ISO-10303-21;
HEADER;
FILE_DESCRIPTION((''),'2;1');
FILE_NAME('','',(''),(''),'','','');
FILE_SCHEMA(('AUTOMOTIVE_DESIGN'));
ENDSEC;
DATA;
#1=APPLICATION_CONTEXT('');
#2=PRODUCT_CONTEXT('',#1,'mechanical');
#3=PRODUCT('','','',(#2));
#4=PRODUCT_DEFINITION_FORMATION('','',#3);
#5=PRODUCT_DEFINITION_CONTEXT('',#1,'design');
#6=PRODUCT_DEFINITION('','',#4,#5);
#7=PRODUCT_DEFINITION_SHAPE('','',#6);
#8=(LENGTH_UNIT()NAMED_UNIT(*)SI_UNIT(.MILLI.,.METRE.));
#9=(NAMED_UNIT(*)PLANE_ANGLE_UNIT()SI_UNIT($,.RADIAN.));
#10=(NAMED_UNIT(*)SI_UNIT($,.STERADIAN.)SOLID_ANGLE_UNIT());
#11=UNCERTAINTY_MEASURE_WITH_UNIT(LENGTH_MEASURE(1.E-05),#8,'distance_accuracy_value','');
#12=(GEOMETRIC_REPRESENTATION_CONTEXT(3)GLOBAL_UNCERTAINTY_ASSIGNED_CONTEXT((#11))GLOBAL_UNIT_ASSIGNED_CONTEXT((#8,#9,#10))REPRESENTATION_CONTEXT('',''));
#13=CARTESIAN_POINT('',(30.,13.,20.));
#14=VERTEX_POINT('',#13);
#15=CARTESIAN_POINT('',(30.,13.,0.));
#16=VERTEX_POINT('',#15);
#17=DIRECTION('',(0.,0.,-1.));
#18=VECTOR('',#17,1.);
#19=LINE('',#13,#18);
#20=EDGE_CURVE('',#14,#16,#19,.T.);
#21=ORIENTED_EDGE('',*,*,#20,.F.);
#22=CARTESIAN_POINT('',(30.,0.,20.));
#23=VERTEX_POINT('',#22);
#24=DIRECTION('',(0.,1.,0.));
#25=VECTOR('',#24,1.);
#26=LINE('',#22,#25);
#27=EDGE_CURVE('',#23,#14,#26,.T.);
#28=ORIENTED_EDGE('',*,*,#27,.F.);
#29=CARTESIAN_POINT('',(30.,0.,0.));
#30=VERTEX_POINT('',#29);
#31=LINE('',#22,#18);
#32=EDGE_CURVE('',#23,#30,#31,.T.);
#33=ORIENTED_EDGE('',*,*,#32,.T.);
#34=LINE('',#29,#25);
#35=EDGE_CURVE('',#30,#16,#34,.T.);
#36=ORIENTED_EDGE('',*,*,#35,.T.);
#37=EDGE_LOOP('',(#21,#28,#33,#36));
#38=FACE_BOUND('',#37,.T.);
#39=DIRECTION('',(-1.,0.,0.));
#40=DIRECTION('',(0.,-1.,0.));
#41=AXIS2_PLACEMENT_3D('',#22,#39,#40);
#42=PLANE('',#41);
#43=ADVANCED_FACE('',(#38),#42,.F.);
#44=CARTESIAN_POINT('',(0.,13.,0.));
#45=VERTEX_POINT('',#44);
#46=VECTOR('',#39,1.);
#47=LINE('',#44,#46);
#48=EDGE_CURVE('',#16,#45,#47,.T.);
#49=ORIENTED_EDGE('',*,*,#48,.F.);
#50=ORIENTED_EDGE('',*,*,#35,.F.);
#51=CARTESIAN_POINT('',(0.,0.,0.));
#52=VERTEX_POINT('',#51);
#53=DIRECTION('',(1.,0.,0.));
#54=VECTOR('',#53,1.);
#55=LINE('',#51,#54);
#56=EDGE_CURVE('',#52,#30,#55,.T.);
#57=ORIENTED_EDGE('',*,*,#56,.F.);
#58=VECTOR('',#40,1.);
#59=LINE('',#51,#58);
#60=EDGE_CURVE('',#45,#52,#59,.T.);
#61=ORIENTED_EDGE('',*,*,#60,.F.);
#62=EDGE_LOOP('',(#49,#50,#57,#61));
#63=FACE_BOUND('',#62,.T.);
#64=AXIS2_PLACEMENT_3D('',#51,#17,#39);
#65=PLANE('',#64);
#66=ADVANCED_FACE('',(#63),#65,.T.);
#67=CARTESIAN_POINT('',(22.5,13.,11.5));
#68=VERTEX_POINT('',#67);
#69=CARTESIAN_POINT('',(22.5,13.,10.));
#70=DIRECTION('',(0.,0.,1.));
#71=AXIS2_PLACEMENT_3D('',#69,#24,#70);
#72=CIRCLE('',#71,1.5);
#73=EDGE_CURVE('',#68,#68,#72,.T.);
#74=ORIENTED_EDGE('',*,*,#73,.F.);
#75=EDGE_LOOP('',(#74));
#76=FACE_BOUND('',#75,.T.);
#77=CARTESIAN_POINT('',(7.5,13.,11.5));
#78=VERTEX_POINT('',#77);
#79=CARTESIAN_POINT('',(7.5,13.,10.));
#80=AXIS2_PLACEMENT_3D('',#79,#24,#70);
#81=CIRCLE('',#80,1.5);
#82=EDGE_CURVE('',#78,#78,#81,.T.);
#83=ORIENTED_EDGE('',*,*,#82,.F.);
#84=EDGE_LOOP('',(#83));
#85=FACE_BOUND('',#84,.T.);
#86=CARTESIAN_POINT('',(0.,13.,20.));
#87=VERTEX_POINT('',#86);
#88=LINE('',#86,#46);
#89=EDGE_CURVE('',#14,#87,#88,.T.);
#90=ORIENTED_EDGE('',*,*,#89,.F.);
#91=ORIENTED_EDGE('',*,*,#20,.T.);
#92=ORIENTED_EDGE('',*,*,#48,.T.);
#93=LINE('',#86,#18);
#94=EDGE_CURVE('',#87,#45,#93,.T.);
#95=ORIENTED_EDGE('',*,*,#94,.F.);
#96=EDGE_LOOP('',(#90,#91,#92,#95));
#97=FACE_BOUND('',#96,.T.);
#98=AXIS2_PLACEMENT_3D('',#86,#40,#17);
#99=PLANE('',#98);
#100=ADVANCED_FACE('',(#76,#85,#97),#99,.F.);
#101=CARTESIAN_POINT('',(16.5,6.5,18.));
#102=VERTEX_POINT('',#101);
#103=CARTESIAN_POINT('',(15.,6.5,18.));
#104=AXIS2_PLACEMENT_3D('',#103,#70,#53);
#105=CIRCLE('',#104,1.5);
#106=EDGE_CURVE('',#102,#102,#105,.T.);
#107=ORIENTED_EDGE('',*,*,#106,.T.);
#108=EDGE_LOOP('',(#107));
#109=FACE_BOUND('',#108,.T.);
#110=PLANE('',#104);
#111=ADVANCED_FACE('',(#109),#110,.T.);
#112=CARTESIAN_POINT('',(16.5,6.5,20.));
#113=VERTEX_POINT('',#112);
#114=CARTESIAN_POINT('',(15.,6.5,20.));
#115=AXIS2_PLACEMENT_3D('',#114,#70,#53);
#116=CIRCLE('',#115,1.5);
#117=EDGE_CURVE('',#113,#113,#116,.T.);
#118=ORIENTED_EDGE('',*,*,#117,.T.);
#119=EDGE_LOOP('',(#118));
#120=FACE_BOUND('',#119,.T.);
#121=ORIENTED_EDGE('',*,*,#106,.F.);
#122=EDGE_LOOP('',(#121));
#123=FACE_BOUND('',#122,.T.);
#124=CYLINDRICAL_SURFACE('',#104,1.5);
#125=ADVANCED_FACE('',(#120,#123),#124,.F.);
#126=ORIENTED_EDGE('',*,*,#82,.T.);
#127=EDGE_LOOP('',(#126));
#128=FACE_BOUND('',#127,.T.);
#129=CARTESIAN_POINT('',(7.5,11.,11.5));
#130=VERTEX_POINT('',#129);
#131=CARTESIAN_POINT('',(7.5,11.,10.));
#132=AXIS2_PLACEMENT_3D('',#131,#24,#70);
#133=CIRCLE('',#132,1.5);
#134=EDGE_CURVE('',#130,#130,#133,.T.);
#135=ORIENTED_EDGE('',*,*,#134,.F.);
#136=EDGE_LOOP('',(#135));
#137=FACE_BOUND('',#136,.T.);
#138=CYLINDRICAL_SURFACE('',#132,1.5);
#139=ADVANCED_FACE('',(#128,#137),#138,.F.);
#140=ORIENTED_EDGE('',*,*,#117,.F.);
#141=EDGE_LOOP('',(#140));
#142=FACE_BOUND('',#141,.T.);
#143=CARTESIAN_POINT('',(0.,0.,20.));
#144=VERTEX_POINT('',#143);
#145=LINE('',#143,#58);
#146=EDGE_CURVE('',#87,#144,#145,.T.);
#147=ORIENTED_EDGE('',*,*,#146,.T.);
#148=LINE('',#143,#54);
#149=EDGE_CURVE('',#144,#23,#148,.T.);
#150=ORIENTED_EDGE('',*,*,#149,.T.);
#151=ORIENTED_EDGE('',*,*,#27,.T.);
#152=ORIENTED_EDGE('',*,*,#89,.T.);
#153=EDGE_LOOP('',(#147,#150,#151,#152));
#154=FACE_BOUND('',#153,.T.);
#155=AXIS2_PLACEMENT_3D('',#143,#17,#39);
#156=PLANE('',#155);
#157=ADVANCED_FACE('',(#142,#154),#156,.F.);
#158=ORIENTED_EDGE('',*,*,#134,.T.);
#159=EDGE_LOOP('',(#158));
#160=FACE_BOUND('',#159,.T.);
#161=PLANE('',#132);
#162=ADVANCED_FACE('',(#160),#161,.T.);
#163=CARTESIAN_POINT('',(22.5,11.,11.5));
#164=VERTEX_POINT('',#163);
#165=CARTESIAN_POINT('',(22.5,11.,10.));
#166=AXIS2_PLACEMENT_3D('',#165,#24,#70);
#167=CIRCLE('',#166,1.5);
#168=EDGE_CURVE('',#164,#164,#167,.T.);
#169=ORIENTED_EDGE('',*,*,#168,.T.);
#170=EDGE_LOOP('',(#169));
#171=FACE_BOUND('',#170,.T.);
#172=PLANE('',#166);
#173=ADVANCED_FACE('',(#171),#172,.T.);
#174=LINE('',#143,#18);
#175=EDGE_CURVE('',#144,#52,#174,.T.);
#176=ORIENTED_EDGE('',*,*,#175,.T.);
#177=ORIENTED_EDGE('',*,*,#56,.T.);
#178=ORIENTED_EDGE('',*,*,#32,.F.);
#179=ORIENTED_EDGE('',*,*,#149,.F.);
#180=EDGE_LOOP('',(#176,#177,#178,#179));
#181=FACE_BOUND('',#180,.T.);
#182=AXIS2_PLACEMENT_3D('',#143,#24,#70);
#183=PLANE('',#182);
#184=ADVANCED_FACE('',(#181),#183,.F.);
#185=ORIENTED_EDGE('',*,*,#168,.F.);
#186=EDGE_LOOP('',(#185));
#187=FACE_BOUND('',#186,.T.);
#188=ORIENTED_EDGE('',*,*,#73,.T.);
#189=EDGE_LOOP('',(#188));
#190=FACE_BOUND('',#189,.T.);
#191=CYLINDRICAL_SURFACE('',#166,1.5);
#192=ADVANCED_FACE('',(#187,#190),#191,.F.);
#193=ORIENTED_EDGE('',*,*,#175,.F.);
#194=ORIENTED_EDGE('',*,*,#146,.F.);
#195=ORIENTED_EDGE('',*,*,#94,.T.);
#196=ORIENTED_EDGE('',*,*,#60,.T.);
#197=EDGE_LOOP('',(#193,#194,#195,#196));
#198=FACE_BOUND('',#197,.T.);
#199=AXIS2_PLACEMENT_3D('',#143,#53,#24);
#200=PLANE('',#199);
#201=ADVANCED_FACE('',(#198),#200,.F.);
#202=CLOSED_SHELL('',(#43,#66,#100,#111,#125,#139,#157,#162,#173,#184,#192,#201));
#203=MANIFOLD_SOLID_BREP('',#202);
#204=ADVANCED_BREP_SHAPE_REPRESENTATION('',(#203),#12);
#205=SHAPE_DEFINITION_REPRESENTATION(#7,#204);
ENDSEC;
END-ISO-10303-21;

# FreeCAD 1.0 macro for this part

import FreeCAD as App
import Part
import Sketcher
from FreeCAD import Vector


def add_polygon(sketch, points):
    """Adds a closed chain of lines whose ends are joined by coincident constraints."""
    first, n = sketch.GeometryCount, len(points)
    for a, b in zip(points, points[1:] + points[:1]):
        sketch.addGeometry(Part.LineSegment(App.Vector(*a, 0), App.Vector(*b, 0)), False)
    for i in range(n):
        sketch.addConstraint(Sketcher.Constraint("Coincident", first + i, 2, first + (i + 1) % n, 1))

doc = App.newDocument("Part")
body = doc.addObject("PartDesign::Body", "Body")

# Sketch on XY plane
sketch1 = body.newObject("Sketcher::SketchObject", "Sketch")
sketch1.AttachmentSupport = (doc.getObject("XY_Plane"), [""])
sketch1.MapMode = "FlatFace"
add_polygon(sketch1, [(0, 13), (0, 0), (30, 0), (30, 13)])  # lines 0-3
sketch1.addConstraint([
    Sketcher.Constraint("Vertical", 0),
    Sketcher.Constraint("Horizontal", 1),
    Sketcher.Constraint("Vertical", 2),
    Sketcher.Constraint("Horizontal", 3),
    Sketcher.Constraint("Coincident", 0, 2, -1, 1),
    Sketcher.Constraint("DistanceX", 1, 1, 1, 2, 30.0),
    Sketcher.Constraint("DistanceY", 0, 2, 0, 1, 13.0),
])
pad1 = body.newObject("PartDesign::Pad", "Pad")
pad1.Profile = sketch1
pad1.Length = 20

# Sketch on XY plane
sketch2 = body.newObject("Sketcher::SketchObject", "Sketch001")
sketch2.AttachmentSupport = (doc.getObject("XY_Plane"), [""])
sketch2.MapMode = "FlatFace"
sketch2.AttachmentOffset = App.Placement(Vector(0, 0, 20), App.Rotation())
sketch2.addGeometry(Part.Circle(Vector(15, 6.5, 0), Vector(0, 0, 1), 1.5), False)
sketch2.addConstraint([
    Sketcher.Constraint("Diameter", 0, 3.0),
    Sketcher.Constraint("DistanceX", -1, 1, 0, 3, 15.0),
    Sketcher.Constraint("DistanceY", -1, 1, 0, 3, 6.5),
])
pocket1 = body.newObject("PartDesign::Pocket", "Pocket")
pocket1.Profile = sketch2
pocket1.Length = 2

# Sketch on XZ plane
sketch3 = body.newObject("Sketcher::SketchObject", "Sketch002")
sketch3.AttachmentSupport = (doc.getObject("XZ_Plane"), [""])
sketch3.MapMode = "FlatFace"
sketch3.AttachmentOffset = App.Placement(Vector(0, 0, -13), App.Rotation())
sketch3.addGeometry([
    Part.Circle(Vector(7.5, 10, 0), Vector(0, 0, 1), 1.5),
    Part.Circle(Vector(22.5, 10, 0), Vector(0, 0, 1), 1.5),
], False)
sketch3.addConstraint([
    Sketcher.Constraint("Equal", 0, 1),
    Sketcher.Constraint("Horizontal", 0, 3, 1, 3),
    Sketcher.Constraint("Diameter", 0, 3.0),
    Sketcher.Constraint("DistanceY", -1, 1, 0, 3, 10.0),
    Sketcher.Constraint("DistanceX", 0, 3, 1, 3, 15.0),
    Sketcher.Constraint("DistanceX", -1, 1, 0, 3, 7.5),
])
pocket2 = body.newObject("PartDesign::Pocket", "Pocket001")
pocket2.Profile = sketch3
pocket2.Length = 2
pocket2.Reversed = True

doc.recompute()
